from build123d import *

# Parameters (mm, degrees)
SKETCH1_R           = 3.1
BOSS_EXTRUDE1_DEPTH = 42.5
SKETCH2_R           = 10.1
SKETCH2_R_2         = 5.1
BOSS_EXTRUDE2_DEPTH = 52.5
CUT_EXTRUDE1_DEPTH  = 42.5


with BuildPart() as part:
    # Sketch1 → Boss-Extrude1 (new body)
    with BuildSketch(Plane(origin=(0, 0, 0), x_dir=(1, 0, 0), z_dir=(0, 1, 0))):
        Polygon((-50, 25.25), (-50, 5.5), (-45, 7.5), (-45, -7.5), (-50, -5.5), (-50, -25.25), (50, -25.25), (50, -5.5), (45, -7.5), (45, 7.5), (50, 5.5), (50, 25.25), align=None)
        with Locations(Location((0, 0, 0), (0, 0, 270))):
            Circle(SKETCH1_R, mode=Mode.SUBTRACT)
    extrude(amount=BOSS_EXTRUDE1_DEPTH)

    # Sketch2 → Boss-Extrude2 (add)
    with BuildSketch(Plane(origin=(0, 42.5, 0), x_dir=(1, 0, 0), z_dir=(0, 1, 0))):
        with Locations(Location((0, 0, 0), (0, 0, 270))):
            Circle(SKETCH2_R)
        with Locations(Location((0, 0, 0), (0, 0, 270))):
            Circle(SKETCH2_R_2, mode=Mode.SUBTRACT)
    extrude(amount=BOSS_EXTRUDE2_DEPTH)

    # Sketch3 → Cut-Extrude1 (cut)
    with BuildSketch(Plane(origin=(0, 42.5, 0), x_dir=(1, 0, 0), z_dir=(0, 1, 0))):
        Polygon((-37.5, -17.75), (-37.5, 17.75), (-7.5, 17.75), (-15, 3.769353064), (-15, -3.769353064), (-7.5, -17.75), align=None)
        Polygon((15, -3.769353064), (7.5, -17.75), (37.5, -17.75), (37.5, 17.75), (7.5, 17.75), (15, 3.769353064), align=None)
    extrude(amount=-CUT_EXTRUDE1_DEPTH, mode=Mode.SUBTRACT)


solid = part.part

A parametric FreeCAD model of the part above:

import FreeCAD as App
import Part
import Sketcher

V = App.Vector

doc = App.newDocument("Part")
body = doc.addObject("PartDesign::Body", "Body")

# Sketch on XZ plane
sketch1 = body.newObject("Sketcher::SketchObject", "Sketch")
sketch1.AttachmentSupport = (doc.getObject("XZ_Plane"), [""])
sketch1.MapMode = "FlatFace"
sketch1.addGeometry(Part.LineSegment(V(-50, -25.2, 0), V(-50, -5.5, 0)), False)
sketch1.addGeometry(Part.LineSegment(V(-50, -5.5, 0), V(-45, -7.5, 0)), False)
sketch1.addGeometry(Part.LineSegment(V(-45, -7.5, 0), V(-45, 7.5, 0)), False)
sketch1.addGeometry(Part.LineSegment(V(-45, 7.5, 0), V(-50, 5.5, 0)), False)
sketch1.addGeometry(Part.LineSegment(V(-50, 5.5, 0), V(-50, 25.2, 0)), False)
sketch1.addGeometry(Part.LineSegment(V(-50, 25.2, 0), V(50, 25.2, 0)), False)
sketch1.addGeometry(Part.LineSegment(V(50, 25.2, 0), V(50, 5.5, 0)), False)
sketch1.addGeometry(Part.LineSegment(V(50, 5.5, 0), V(45, 7.5, 0)), False)
sketch1.addGeometry(Part.LineSegment(V(45, 7.5, 0), V(45, -7.5, 0)), False)
sketch1.addGeometry(Part.LineSegment(V(45, -7.5, 0), V(50, -5.5, 0)), False)
sketch1.addGeometry(Part.LineSegment(V(50, -5.5, 0), V(50, -25.2, 0)), False)
sketch1.addGeometry(Part.LineSegment(V(50, -25.2, 0), V(-50, -25.2, 0)), False)
sketch1.addGeometry(Part.Circle(V(0, 0, 0), V(0, 0, 1), 3.1), False)
sketch1.addConstraint(Sketcher.Constraint("Coincident", 0, 2, 1, 1))
sketch1.addConstraint(Sketcher.Constraint("Coincident", 1, 2, 2, 1))
sketch1.addConstraint(Sketcher.Constraint("Coincident", 2, 2, 3, 1))
sketch1.addConstraint(Sketcher.Constraint("Coincident", 3, 2, 4, 1))
sketch1.addConstraint(Sketcher.Constraint("Coincident", 4, 2, 5, 1))
sketch1.addConstraint(Sketcher.Constraint("Coincident", 5, 2, 6, 1))
sketch1.addConstraint(Sketcher.Constraint("Coincident", 6, 2, 7, 1))
sketch1.addConstraint(Sketcher.Constraint("Coincident", 7, 2, 8, 1))
sketch1.addConstraint(Sketcher.Constraint("Coincident", 8, 2, 9, 1))
sketch1.addConstraint(Sketcher.Constraint("Coincident", 9, 2, 10, 1))
sketch1.addConstraint(Sketcher.Constraint("Coincident", 10, 2, 11, 1))
sketch1.addConstraint(Sketcher.Constraint("Coincident", 11, 2, 0, 1))
sketch1.addConstraint(Sketcher.Constraint("Vertical", 0))
sketch1.addConstraint(Sketcher.Constraint("Vertical", 2))
sketch1.addConstraint(Sketcher.Constraint("Vertical", 4))
sketch1.addConstraint(Sketcher.Constraint("Horizontal", 5))
sketch1.addConstraint(Sketcher.Constraint("Vertical", 6))
sketch1.addConstraint(Sketcher.Constraint("Vertical", 8))
sketch1.addConstraint(Sketcher.Constraint("Vertical", 10))
sketch1.addConstraint(Sketcher.Constraint("Horizontal", 11))
sketch1.addConstraint(Sketcher.Constraint("Coincident", 12, 3, -1, 1))
sketch1.addConstraint(Sketcher.Constraint("Symmetric", 0, 2, 6, 2, -1, 1))
sketch1.addConstraint(Sketcher.Constraint("Symmetric", 1, 2, 7, 2, -1, 1))
sketch1.addConstraint(Sketcher.Constraint("Symmetric", 3, 2, 9, 2, -1, 1))
sketch1.addConstraint(Sketcher.Constraint("Symmetric", 3, 2, 6, 2, -2))
sketch1.addConstraint(Sketcher.Constraint("Parallel", 3, 9))
sketch1.addConstraint(Sketcher.Constraint("Horizontal", 2, 2, 7, 2))
sketch1.addConstraint(Sketcher.Constraint("Equal", 0, 4))
sketch1.addConstraint(Sketcher.Constraint("Diameter", 12, 6.2))
sketch1.addConstraint(Sketcher.Constraint("DistanceX", 5, 1, 5, 2, 100.0))
sketch1.addConstraint(Sketcher.Constraint("DistanceY", 2, 1, 2, 2, 15.0))
sketch1.addConstraint(Sketcher.Constraint("DistanceX", 1, 2, -1, 1, 45.0))
sketch1.addConstraint(Sketcher.Constraint("DistanceY", 1, 2, 0, 2, 2.0))
sketch1.addConstraint(Sketcher.Constraint("DistanceY", 0, 1, 0, 2, 19.75))
pad1 = body.newObject("PartDesign::Pad", "Pad")
pad1.Profile = sketch1
pad1.Length = 42.5
pad1.Reversed = True

# Sketch on XZ plane
sketch2 = body.newObject("Sketcher::SketchObject", "Sketch001")
sketch2.AttachmentSupport = (doc.getObject("XZ_Plane"), [""])
sketch2.MapMode = "FlatFace"
sketch2.AttachmentOffset = App.Placement(V(0, 0, -42.5), App.Rotation())
sketch2.addGeometry(Part.Circle(V(0, 0, 0), V(0, 0, 1), 10), False)
sketch2.addGeometry(Part.Circle(V(0, 0, 0), V(0, 0, 1), 5), False)
sketch2.addConstraint(Sketcher.Constraint("Coincident", 0, 3, -1, 1))
sketch2.addConstraint(Sketcher.Constraint("Coincident", 1, 3, -1, 1))
sketch2.addConstraint(Sketcher.Constraint("Diameter", 0, 20.2))
sketch2.addConstraint(Sketcher.Constraint("Diameter", 1, 10.2))
pad2 = body.newObject("PartDesign::Pad", "Pad001")
pad2.Profile = sketch2
pad2.Length = 52.5
pad2.Reversed = True

# Sketch on XZ plane
sketch3 = body.newObject("Sketcher::SketchObject", "Sketch002")
sketch3.AttachmentSupport = (doc.getObject("XZ_Plane"), [""])
sketch3.MapMode = "FlatFace"
sketch3.AttachmentOffset = App.Placement(V(0, 0, -42.5), App.Rotation())
sketch3.addGeometry(Part.LineSegment(V(-38, -18, 0), V(-38, 18, 0)), False)
sketch3.addGeometry(Part.LineSegment(V(-38, 18, 0), V(-8, 18, 0)), False)
sketch3.addGeometry(Part.LineSegment(V(-8, 18, 0), V(-15, 4, 0)), False)
sketch3.addGeometry(Part.LineSegment(V(-15, 4, 0), V(-15, -4, 0)), False)
sketch3.addGeometry(Part.LineSegment(V(-15, -4, 0), V(-8, -18, 0)), False)
sketch3.addGeometry(Part.LineSegment(V(-8, -18, 0), V(-38, -18, 0)), False)
sketch3.addGeometry(Part.LineSegment(V(15, 4, 0), V(8, 18, 0)), False)
sketch3.addGeometry(Part.LineSegment(V(8, 18, 0), V(38, 18, 0)), False)
sketch3.addGeometry(Part.LineSegment(V(38, 18, 0), V(38, -18, 0)), False)
sketch3.addGeometry(Part.LineSegment(V(38, -18, 0), V(8, -18, 0)), False)
sketch3.addGeometry(Part.LineSegment(V(8, -18, 0), V(15, -4, 0)), False)
sketch3.addGeometry(Part.LineSegment(V(15, -4, 0), V(15, 4, 0)), False)
sketch3.addConstraint(Sketcher.Constraint("Coincident", 0, 2, 1, 1))
sketch3.addConstraint(Sketcher.Constraint("Coincident", 1, 2, 2, 1))
sketch3.addConstraint(Sketcher.Constraint("Coincident", 2, 2, 3, 1))
sketch3.addConstraint(Sketcher.Constraint("Coincident", 3, 2, 4, 1))
sketch3.addConstraint(Sketcher.Constraint("Coincident", 4, 2, 5, 1))
sketch3.addConstraint(Sketcher.Constraint("Coincident", 5, 2, 0, 1))
sketch3.addConstraint(Sketcher.Constraint("Coincident", 6, 2, 7, 1))
sketch3.addConstraint(Sketcher.Constraint("Coincident", 7, 2, 8, 1))
sketch3.addConstraint(Sketcher.Constraint("Coincident", 8, 2, 9, 1))
sketch3.addConstraint(Sketcher.Constraint("Coincident", 9, 2, 10, 1))
sketch3.addConstraint(Sketcher.Constraint("Coincident", 10, 2, 11, 1))
sketch3.addConstraint(Sketcher.Constraint("Coincident", 11, 2, 6, 1))
sketch3.addConstraint(Sketcher.Constraint("Vertical", 0))
sketch3.addConstraint(Sketcher.Constraint("Horizontal", 1))
sketch3.addConstraint(Sketcher.Constraint("Vertical", 3))
sketch3.addConstraint(Sketcher.Constraint("Horizontal", 5))
sketch3.addConstraint(Sketcher.Constraint("Horizontal", 7))
sketch3.addConstraint(Sketcher.Constraint("Vertical", 8))
sketch3.addConstraint(Sketcher.Constraint("Horizontal", 9))
sketch3.addConstraint(Sketcher.Constraint("Vertical", 11))
sketch3.addConstraint(Sketcher.Constraint("Symmetric", 4, 2, 6, 2, -1, 1))
sketch3.addConstraint(Sketcher.Constraint("Symmetric", 0, 2, 8, 2, -1, 1))
sketch3.addConstraint(Sketcher.Constraint("Symmetric", 2, 2, 10, 2, -1, 1))
sketch3.addConstraint(Sketcher.Constraint("Symmetric", 1, 2, 6, 2, -2))
sketch3.addConstraint(Sketcher.Constraint("Parallel", 4, 6))
sketch3.addConstraint(Sketcher.Constraint("Parallel", 2, 10))
sketch3.addConstraint(Sketcher.Constraint("Horizontal", 3, 2, 10, 2))
sketch3.addConstraint(Sketcher.Constraint("DistanceX", 1, 1, 1, 2, 30.0))
sketch3.addConstraint(Sketcher.Constraint("DistanceY", 0, 1, 0, 2, 35.5))
sketch3.addConstraint(Sketcher.Constraint("DistanceX", 2, 2, -1, 1, 15.0))
sketch3.addConstraint(Sketcher.Constraint("DistanceX", 1, 2, 6, 2, 15.0))
sketch3.addConstraint(Sketcher.Constraint("DistanceY", 3, 2, 3, 1, 7.538706))
pocket1 = body.newObject("PartDesign::Pocket", "Pocket")
pocket1.Profile = sketch3
pocket1.Length = 42.5
pocket1.Reversed = True

doc.recompute()
